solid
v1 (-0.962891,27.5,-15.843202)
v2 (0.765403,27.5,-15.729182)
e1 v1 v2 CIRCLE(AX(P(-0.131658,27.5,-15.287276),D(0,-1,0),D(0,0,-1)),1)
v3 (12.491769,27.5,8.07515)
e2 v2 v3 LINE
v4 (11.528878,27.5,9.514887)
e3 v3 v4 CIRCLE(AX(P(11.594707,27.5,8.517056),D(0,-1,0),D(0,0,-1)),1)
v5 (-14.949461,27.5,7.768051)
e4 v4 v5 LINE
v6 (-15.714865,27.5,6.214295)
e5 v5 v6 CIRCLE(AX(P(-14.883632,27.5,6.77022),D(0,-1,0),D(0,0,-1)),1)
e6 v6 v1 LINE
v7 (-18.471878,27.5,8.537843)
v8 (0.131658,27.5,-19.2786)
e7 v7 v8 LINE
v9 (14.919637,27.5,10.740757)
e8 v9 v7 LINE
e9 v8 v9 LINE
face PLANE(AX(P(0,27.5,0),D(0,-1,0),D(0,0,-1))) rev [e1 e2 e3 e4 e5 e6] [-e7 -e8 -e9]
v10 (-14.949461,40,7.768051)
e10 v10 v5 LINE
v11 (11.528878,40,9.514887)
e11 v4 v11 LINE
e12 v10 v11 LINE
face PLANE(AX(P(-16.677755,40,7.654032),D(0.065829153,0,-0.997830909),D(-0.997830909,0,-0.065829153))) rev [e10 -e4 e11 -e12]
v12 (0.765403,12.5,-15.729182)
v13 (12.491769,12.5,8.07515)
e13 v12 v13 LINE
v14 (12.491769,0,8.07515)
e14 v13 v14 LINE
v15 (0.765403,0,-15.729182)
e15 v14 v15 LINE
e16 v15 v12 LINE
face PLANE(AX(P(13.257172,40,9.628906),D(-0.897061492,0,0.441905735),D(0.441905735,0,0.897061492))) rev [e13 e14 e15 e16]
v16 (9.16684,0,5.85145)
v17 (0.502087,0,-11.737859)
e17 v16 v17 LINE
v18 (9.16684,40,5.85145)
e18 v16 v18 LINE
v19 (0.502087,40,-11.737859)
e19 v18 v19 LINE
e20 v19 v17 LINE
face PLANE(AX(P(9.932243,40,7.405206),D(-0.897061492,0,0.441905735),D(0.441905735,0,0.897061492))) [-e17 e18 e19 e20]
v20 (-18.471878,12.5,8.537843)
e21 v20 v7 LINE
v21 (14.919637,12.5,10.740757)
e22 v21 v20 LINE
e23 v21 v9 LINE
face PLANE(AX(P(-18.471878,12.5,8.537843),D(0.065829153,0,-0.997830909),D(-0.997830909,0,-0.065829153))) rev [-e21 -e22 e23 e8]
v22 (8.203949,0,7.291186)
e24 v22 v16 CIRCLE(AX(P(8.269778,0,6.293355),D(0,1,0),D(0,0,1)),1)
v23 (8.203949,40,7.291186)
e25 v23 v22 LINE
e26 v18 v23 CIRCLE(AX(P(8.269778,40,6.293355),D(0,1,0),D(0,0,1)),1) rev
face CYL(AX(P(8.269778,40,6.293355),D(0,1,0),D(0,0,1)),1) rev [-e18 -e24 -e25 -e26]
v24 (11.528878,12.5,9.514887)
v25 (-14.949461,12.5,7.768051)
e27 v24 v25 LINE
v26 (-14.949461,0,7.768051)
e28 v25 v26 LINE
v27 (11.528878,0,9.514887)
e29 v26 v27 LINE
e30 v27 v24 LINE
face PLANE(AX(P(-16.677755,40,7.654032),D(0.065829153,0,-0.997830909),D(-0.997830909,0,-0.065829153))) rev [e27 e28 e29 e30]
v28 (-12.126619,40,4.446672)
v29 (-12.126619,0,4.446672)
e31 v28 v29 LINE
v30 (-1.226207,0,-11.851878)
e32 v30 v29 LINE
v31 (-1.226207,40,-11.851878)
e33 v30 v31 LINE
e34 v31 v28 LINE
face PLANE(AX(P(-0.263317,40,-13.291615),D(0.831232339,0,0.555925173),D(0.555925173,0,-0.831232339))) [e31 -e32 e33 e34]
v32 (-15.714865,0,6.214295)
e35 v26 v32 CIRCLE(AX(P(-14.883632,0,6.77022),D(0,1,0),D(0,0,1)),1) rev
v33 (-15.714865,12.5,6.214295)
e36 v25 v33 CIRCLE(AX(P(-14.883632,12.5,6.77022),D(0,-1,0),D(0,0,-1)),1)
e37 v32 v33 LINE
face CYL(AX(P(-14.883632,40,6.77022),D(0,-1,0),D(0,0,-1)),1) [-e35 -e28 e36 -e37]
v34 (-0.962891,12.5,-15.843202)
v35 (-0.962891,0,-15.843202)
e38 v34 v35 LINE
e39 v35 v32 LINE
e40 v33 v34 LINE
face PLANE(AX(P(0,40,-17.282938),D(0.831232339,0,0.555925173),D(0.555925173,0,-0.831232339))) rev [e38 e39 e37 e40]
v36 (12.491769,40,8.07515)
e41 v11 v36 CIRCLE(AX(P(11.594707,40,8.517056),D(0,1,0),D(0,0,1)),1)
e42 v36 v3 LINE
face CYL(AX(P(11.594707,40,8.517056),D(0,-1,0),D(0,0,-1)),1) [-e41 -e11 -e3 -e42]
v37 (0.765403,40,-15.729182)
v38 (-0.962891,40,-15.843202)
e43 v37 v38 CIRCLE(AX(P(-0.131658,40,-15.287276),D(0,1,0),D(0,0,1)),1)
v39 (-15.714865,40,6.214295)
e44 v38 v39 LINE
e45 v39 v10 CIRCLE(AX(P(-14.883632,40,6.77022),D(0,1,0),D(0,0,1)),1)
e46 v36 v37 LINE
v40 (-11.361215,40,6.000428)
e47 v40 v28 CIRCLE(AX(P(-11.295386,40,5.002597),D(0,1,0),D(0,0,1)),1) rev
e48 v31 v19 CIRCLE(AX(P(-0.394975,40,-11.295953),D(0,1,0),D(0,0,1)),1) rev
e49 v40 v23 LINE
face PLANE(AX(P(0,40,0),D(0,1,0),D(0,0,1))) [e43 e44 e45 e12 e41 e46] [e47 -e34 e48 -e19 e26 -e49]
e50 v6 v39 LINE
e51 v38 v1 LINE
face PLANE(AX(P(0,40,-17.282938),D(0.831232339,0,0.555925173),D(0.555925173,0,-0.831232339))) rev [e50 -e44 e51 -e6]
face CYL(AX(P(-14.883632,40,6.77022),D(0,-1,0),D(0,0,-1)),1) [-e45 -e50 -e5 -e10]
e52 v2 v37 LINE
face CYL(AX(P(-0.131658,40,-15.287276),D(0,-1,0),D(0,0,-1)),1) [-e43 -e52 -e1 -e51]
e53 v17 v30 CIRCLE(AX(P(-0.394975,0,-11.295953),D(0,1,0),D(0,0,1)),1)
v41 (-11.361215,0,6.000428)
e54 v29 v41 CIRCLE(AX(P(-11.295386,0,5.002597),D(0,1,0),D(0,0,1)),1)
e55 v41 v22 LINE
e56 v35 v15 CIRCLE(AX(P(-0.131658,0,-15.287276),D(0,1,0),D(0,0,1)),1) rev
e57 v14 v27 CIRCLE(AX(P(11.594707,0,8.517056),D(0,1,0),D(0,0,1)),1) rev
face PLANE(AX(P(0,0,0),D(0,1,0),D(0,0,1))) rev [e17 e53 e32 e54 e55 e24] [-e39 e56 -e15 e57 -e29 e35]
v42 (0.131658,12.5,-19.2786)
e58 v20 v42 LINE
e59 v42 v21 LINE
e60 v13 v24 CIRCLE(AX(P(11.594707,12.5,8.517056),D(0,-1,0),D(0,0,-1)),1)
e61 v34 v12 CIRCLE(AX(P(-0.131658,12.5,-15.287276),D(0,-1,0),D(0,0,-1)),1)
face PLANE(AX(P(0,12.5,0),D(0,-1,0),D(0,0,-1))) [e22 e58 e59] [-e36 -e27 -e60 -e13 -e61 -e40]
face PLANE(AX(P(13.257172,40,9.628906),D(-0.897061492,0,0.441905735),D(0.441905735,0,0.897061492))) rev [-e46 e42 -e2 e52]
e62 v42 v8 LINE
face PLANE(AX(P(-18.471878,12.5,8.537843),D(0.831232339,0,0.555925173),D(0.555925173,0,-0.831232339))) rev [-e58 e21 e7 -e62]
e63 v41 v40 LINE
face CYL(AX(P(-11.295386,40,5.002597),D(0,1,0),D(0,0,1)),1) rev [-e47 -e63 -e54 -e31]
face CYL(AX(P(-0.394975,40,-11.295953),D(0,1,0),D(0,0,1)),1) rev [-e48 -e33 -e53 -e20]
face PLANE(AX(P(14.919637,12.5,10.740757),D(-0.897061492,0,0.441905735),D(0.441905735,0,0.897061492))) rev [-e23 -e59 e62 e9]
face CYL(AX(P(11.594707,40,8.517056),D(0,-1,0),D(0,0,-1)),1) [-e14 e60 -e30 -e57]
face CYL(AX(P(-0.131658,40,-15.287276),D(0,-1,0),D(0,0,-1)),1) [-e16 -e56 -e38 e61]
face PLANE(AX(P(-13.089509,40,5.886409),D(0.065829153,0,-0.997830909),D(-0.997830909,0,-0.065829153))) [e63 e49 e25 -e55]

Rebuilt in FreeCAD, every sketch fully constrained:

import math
import FreeCAD as App
import Part
import Sketcher

V = App.Vector
Q = App.Units.Quantity


def edges_at(feature, points):
    """Names of the edges that pass closest to the given points."""
    edges = feature.Shape.Edges
    near = lambda p: min(range(len(edges)), key=lambda i: edges[i].distToShape(Part.Vertex(*p))[0])
    return sorted({f"Edge{near(p) + 1}" for p in points})

doc = App.newDocument("Part")
body = doc.addObject("PartDesign::Body", "Body")

# Sketch on XZ plane
sketch1 = body.newObject("Sketcher::SketchObject", "Sketch")
sketch1.AttachmentSupport = (doc.getObject("XZ_Plane"), [""])
sketch1.MapMode = "FlatFace"
sketch1.addGeometry(Part.LineSegment(V(0, -17, 0), V(-17, 8, 0)), False)
sketch1.addGeometry(Part.LineSegment(V(-17, 8, 0), V(13, 10, 0)), False)
sketch1.addGeometry(Part.LineSegment(V(13, 10, 0), V(0, -17, 0)), False)
sketch1.addGeometry(Part.LineSegment(V(-13, 6, 0), V(0, -13, 0)), False)
sketch1.addGeometry(Part.LineSegment(V(0, -13, 0), V(10, 7, 0)), False)
sketch1.addGeometry(Part.LineSegment(V(10, 7, 0), V(-13, 6, 0)), False)
sketch1.addConstraint(Sketcher.Constraint("Coincident", 0, 2, 1, 1))
sketch1.addConstraint(Sketcher.Constraint("Coincident", 1, 2, 2, 1))
sketch1.addConstraint(Sketcher.Constraint("Coincident", 2, 2, 0, 1))
sketch1.addConstraint(Sketcher.Constraint("Coincident", 3, 2, 4, 1))
sketch1.addConstraint(Sketcher.Constraint("Coincident", 4, 2, 5, 1))
sketch1.addConstraint(Sketcher.Constraint("Coincident", 5, 2, 3, 1))
sketch1.addConstraint(Sketcher.Constraint("PointOnObject", 2, 2, -2))
sketch1.addConstraint(Sketcher.Constraint("Parallel", 0, 3))
sketch1.addConstraint(Sketcher.Constraint("Parallel", 2, 4))
sketch1.addConstraint(Sketcher.Constraint("Parallel", 1, 5))
sketch1.addConstraint(Sketcher.Constraint("Equal", 0, 1))
sketch1.addConstraint(Sketcher.Constraint("Equal", 1, 2))
sketch1.addConstraint(Sketcher.Constraint("Distance", 0, Q("30 mm")))
sketch1.addConstraint(Sketcher.Constraint("DistanceY", 4, 2, 1, 2, Q("2.223701 mm")))
sketch1.addConstraint(Sketcher.Constraint("DistanceY", -1, 1, 0, 2, Q("7.654032 mm")))
sketch1.addConstraint(Sketcher.Constraint("DistanceY", 2, 2, -1, 1, Q("17.282938 mm")))
sketch1.addConstraint(Sketcher.Constraint("DistanceX", 5, 2, -1, 1, Q("13.089509 mm")))
sketch1.addConstraint(Sketcher.Constraint("DistanceY", -1, 1, 5, 2, Q("5.886409 mm")))
pad1 = body.newObject("PartDesign::Pad", "Pad")
pad1.Profile = sketch1
pad1.Length = 40
pad1.Reversed = True
doc.recompute()

fillet = body.newObject("PartDesign::Fillet", "Fillet")
fillet.Base = (pad1, edges_at(pad1, [
    (9.932, 20, 7.405),
    (-0.263, 20, -13.292),
    (-13.09, 20, 5.886),
    (13.257, 20, 9.629),
    (-16.678, 20, 7.654),
    (0, 20, -17.283),
]))
fillet.Radius = 1

# Sketch on XZ plane
sketch2 = body.newObject("Sketcher::SketchObject", "Sketch001")
sketch2.AttachmentSupport = (doc.getObject("XZ_Plane"), [""])
sketch2.MapMode = "FlatFace"
sketch2.AttachmentOffset = App.Placement(V(0, 0, -20), App.Rotation())
sketch2.addGeometry(Part.LineSegment(V(14.9, 10.7, 0), V(-18.5, 8.5, 0)), False)
sketch2.addGeometry(Part.LineSegment(V(-18.5, 8.5, 0), V(0.1, -19.3, 0)), False)
sketch2.addGeometry(Part.LineSegment(V(0.1, -19.3, 0), V(14.9, 10.7, 0)), False)
sketch2.addGeometry(Part.LineSegment(V(12.5, 8.1, 0), V(0.8, -15.7, 0)), False)
sketch2.addGeometry(Part.ArcOfCircle(Part.Circle(V(-0.1, -15.3, 0), V(0, 0, 1), 1), math.radians(-146), math.radians(-26)), False)
sketch2.addGeometry(Part.LineSegment(V(-1, -15.8, 0), V(-15.7, 6.2, 0)), False)
sketch2.addGeometry(Part.ArcOfCircle(Part.Circle(V(-14.9, 6.8, 0), V(0, 0, 1), 1), math.radians(94), math.radians(214)), False)
sketch2.addGeometry(Part.LineSegment(V(-14.9, 7.8, 0), V(11.5, 9.5, 0)), False)
sketch2.addGeometry(Part.ArcOfCircle(Part.Circle(V(11.6, 8.5, 0), V(0, 0, 1), 1), math.radians(-26), math.radians(94)), False)
sketch2.addConstraint(Sketcher.Constraint("Coincident", 0, 2, 1, 1))
sketch2.addConstraint(Sketcher.Constraint("Coincident", 1, 2, 2, 1))
sketch2.addConstraint(Sketcher.Constraint("Coincident", 2, 2, 0, 1))
sketch2.addConstraint(Sketcher.Constraint("Tangent", 3, 2, 4, 2))
sketch2.addConstraint(Sketcher.Constraint("Tangent", 4, 1, 5, 1))
sketch2.addConstraint(Sketcher.Constraint("Tangent", 5, 2, 6, 2))
sketch2.addConstraint(Sketcher.Constraint("Tangent", 6, 1, 7, 1))
sketch2.addConstraint(Sketcher.Constraint("Tangent", 7, 2, 8, 2))
sketch2.addConstraint(Sketcher.Constraint("Tangent", 8, 1, 3, 1))
sketch2.addConstraint(Sketcher.Constraint("Equal", 4, 6))
sketch2.addConstraint(Sketcher.Constraint("Equal", 6, 8))
sketch2.addConstraint(Sketcher.Constraint("Parallel", 2, 3))
sketch2.addConstraint(Sketcher.Constraint("Parallel", 1, 5))
sketch2.addConstraint(Sketcher.Constraint("Parallel", 0, 7))
sketch2.addConstraint(Sketcher.Constraint("Equal", 0, 1))
sketch2.addConstraint(Sketcher.Constraint("Equal", 1, 2))
sketch2.addConstraint(Sketcher.Constraint("Radius", 4, Q("1 mm")))
sketch2.addConstraint(Sketcher.Constraint("Distance", 0, Q("33.464102 mm")))
sketch2.addConstraint(Sketcher.Constraint("Distance", 3, Q("26.535898 mm")))
sketch2.addConstraint(Sketcher.Constraint("DistanceY", 1, 2, -1, 1, Q("19.2786 mm")))
sketch2.addConstraint(Sketcher.Constraint("DistanceY", 4, 1, -1, 1, Q("15.843202 mm")))
sketch2.addConstraint(Sketcher.Constraint("DistanceY", 8, 3, 2, 2, Q("2.223701 mm")))
sketch2.addConstraint(Sketcher.Constraint("DistanceX", 4, 3, -1, 1, Q("0.131658 mm")))
sketch2.addConstraint(Sketcher.Constraint("DistanceX", 0, 2, -1, 1, Q("18.471878 mm")))
pad2 = body.newObject("PartDesign::Pad", "Pad001")
pad2.Profile = sketch2
pad2.Length = 15
pad2.Midplane = True

doc.recompute()
